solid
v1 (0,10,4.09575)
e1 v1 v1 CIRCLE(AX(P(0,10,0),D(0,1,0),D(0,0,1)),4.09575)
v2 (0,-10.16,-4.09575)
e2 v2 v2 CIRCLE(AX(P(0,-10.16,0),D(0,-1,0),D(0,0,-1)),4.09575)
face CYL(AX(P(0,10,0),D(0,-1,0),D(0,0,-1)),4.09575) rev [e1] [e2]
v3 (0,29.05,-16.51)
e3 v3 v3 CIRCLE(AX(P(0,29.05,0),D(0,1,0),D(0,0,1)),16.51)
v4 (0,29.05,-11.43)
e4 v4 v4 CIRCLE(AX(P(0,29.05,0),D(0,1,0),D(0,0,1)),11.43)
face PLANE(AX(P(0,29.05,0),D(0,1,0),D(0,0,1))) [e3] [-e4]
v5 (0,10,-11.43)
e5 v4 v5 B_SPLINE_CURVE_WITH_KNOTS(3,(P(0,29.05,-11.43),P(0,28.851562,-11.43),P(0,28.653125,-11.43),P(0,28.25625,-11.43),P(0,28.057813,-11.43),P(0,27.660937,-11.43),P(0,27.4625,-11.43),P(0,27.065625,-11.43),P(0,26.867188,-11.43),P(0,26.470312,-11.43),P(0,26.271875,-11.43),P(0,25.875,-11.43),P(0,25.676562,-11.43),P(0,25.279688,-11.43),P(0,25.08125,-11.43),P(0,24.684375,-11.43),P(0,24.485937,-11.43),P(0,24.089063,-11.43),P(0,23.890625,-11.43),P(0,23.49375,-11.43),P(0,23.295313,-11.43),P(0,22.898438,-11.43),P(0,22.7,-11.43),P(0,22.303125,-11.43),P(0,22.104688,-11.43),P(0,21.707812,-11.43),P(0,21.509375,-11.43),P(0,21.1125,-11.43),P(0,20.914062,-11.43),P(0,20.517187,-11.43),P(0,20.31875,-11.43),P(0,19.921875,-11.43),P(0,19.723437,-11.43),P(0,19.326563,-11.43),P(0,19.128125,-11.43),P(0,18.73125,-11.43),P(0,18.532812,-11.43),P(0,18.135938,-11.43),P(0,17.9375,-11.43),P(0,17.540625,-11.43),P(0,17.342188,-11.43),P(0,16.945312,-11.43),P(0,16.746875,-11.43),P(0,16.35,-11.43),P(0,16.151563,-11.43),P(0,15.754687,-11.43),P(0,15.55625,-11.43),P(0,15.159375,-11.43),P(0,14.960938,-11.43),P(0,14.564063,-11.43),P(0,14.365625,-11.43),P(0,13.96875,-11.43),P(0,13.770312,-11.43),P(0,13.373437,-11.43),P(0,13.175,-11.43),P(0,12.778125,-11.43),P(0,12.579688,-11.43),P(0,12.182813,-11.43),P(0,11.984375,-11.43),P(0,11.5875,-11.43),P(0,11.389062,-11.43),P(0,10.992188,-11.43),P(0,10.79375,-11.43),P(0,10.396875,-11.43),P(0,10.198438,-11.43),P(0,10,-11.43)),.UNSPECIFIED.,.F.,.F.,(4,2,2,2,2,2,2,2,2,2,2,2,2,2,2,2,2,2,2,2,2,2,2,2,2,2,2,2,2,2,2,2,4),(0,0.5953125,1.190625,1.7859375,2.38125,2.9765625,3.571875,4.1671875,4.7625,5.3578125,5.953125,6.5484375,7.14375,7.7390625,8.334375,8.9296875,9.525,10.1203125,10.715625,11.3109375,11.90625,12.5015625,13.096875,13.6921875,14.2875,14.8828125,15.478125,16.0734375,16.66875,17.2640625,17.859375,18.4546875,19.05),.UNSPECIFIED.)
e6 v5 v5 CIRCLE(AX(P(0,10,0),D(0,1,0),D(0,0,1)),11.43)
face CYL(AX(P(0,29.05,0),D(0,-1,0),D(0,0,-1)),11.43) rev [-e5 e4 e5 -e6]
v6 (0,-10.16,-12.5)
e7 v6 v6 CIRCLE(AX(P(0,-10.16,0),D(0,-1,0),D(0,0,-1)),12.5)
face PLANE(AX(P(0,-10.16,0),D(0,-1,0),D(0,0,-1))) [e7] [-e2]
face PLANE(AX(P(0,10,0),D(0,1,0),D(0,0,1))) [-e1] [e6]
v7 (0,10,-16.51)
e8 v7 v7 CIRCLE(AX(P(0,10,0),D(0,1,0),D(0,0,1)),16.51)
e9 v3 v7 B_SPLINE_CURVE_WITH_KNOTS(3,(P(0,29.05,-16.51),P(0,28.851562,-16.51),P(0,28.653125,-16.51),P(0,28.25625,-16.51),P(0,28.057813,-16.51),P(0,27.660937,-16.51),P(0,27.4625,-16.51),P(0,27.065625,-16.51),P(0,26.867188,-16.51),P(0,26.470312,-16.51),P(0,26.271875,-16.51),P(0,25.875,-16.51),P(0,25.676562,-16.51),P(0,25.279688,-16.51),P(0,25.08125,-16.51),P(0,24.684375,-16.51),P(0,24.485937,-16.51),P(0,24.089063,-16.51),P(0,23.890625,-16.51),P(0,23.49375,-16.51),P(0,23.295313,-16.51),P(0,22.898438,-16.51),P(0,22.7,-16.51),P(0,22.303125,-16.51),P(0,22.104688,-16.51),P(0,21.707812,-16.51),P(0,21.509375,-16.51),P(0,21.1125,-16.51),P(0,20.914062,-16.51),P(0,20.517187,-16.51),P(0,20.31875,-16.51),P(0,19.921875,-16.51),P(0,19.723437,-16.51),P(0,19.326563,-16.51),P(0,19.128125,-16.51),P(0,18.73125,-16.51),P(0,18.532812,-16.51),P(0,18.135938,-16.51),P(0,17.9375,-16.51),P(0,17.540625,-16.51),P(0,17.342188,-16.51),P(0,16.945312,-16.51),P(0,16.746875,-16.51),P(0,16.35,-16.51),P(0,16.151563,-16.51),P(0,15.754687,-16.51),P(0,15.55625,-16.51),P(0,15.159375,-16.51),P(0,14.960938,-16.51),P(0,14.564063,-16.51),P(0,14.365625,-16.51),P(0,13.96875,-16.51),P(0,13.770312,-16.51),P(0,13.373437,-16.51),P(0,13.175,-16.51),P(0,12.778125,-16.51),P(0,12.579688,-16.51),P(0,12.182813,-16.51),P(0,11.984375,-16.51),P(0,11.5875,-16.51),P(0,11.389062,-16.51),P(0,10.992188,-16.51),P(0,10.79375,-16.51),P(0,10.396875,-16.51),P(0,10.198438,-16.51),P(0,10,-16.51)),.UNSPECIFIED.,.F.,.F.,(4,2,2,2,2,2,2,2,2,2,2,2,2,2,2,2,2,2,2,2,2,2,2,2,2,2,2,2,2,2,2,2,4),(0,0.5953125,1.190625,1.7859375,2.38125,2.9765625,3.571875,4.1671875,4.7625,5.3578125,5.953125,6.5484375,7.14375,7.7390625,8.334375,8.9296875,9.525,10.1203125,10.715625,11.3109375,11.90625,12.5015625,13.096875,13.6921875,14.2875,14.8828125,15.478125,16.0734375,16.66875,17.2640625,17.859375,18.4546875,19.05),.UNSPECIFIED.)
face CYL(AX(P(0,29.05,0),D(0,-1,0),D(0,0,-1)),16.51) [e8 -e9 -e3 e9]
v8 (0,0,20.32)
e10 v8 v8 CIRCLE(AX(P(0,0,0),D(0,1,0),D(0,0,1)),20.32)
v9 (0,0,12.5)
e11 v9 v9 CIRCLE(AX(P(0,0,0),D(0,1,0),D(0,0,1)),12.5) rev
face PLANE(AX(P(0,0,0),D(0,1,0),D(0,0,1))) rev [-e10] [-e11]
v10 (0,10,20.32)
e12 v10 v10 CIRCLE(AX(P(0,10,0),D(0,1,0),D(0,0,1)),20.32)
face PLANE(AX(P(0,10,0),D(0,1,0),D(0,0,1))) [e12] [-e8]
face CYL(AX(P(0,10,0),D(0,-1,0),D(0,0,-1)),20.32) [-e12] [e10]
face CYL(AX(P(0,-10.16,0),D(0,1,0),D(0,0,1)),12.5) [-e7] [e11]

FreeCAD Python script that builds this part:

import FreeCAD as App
import Part
import Sketcher
Q = App.Units.Quantity

doc = App.newDocument("Part")
params = doc.addObject("Spreadsheet::Sheet", "Params")
for row, (alias, value) in enumerate([
    ("sketch1_diameter", "1.6 in"),
    ("pad1_length", "10 mm"),
    ("sketch2_diameter", "1.3 in"),
    ("sketch2_diameter2", "0.9 in"),
    ("pad2_length", "0.75 in"),
    ("pad3_length", "0.4 in"),
], start=1):
    params.set(f"A{row}", alias)
    params.set(f"B{row}", "=" + value)
    params.setAlias(f"B{row}", alias)

body = doc.addObject("PartDesign::Body", "Body")

sketch1 = body.newObject("Sketcher::SketchObject", "Sketch")
sketch1.AttachmentSupport = (doc.getObject("XZ_Plane"), [""])
sketch1.MapMode = "FlatFace"
sketch1.addGeometry([
    Part.Circle(App.Vector(0, 0, 0), App.Vector(0, 0, 1), 20.32),
    Part.Circle(App.Vector(0, 0, 0), App.Vector(0, 0, 1), 4.09575),
], False)
sketch1.addConstraint([
    Sketcher.Constraint("Coincident", 0, 3, -1, 1),
    Sketcher.Constraint("Coincident", 1, 3, -1, 1),
    Sketcher.Constraint("Diameter", 0, Q("1.6 in")),
    Sketcher.Constraint("Diameter", 1, Q("0.3225 in")),
])
sketch1.setExpression("Constraints[2]", "Params.sketch1_diameter")
pad1 = body.newObject("PartDesign::Pad", "Pad")
pad1.Profile = sketch1
pad1.setExpression("Length", "Params.pad1_length")
pad1.Reversed = True

sketch2 = body.newObject("Sketcher::SketchObject", "Sketch001")
sketch2.AttachmentSupport = (doc.getObject("XZ_Plane"), [""])
sketch2.MapMode = "FlatFace"
sketch2.AttachmentOffset = App.Placement(App.Vector(0, 0, -10), App.Rotation())
sketch2.addGeometry([
    Part.Circle(App.Vector(0, 0, 0), App.Vector(0, 0, 1), 16.51),
    Part.Circle(App.Vector(0, 0, 0), App.Vector(0, 0, 1), 11.43),
], False)
sketch2.addConstraint([
    Sketcher.Constraint("Coincident", 0, 3, -1, 1),
    Sketcher.Constraint("Coincident", 1, 3, -1, 1),
    Sketcher.Constraint("Diameter", 0, Q("1.3 in")),
    Sketcher.Constraint("Diameter", 1, Q("0.9 in")),
])
sketch2.setExpression("Constraints[2]", "Params.sketch2_diameter")
sketch2.setExpression("Constraints[3]", "Params.sketch2_diameter2")
pad2 = body.newObject("PartDesign::Pad", "Pad001")
pad2.Profile = sketch2
pad2.setExpression("Length", "Params.pad2_length")
pad2.Reversed = True

sketch3 = body.newObject("Sketcher::SketchObject", "Sketch002")
sketch3.AttachmentSupport = (doc.getObject("XZ_Plane"), [""])
sketch3.MapMode = "FlatFace"
sketch3.AttachmentOffset = App.Placement(App.Vector(0, 0, 0.4 * 25.4), App.Rotation())
sketch3.addGeometry([
    Part.Circle(App.Vector(0, 0, 0), App.Vector(0, 0, 1), 12.5),
    Part.Circle(App.Vector(0, 0, 0), App.Vector(0, 0, 1), 4.09575),
], False)
sketch3.addConstraint([
    Sketcher.Constraint("Coincident", 0, 3, -1, 1),
    Sketcher.Constraint("Coincident", 1, 3, -1, 1),
    Sketcher.Constraint("Diameter", 1, Q("0.3225 in")),
    Sketcher.Constraint("Diameter", 0, 25.0),
])
pad3 = body.newObject("PartDesign::Pad", "Pad002")
pad3.Profile = sketch3
pad3.setExpression("Length", "Params.pad3_length")
pad3.Reversed = True

doc.recompute()
